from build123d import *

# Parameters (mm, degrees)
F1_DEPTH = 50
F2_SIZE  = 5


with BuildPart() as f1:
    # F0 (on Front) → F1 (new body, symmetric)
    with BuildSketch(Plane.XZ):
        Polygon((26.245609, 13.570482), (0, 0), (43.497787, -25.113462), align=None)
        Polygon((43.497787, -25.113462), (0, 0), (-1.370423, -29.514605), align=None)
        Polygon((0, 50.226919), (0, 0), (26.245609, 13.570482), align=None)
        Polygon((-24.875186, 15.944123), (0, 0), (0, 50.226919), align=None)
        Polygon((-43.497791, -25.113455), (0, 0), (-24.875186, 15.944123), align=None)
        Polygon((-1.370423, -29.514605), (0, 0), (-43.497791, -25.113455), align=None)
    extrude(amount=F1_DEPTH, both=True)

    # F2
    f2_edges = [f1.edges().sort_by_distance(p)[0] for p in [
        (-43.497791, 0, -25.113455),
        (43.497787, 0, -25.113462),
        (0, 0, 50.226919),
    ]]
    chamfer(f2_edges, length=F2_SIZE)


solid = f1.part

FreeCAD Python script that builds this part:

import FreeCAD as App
import Part
import Sketcher


def edges_at(feature, points):
    """Names of the edges that pass closest to the given points."""
    edges = feature.Shape.Edges
    near = lambda p: min(range(len(edges)), key=lambda i: edges[i].distToShape(Part.Vertex(*p))[0])
    return sorted({f"Edge{near(p) + 1}" for p in points})


def add_polygon(sketch, points):
    """Adds a closed chain of lines whose ends are joined by coincident constraints."""
    first, n = sketch.GeometryCount, len(points)
    for a, b in zip(points, points[1:] + points[:1]):
        sketch.addGeometry(Part.LineSegment(App.Vector(*a, 0), App.Vector(*b, 0)), False)
    for i in range(n):
        sketch.addConstraint(Sketcher.Constraint("Coincident", first + i, 2, first + (i + 1) % n, 1))

doc = App.newDocument("Part")
body = doc.addObject("PartDesign::Body", "Body")

# Sketch on XZ plane
sketch1 = doc.addObject("Sketcher::SketchObject", "Sketch")
body.addObject(sketch1)
sketch1.AttachmentSupport = (doc.XZ_Plane, [""])
sketch1.MapMode = "FlatFace"
add_polygon(sketch1, [(-1, -30), (43, -25), (26, 14), (0, 50), (-25, 16), (-43, -25)])  # lines 0-5
sketch1.addConstraint(Sketcher.Constraint("Symmetric", 0, 2, 4, 2, -2))
sketch1.addConstraint(Sketcher.Constraint("PointOnObject", 2, 2, -2))
sketch1.addConstraint(Sketcher.Constraint("Equal", 0, 2))
sketch1.addConstraint(Sketcher.Constraint("Equal", 1, 5))
sketch1.addConstraint(Sketcher.Constraint("DistanceX", 4, 2, 1, 2, 69.7434))
sketch1.addConstraint(Sketcher.Constraint("Distance", 0, 45.083548))
sketch1.addConstraint(Sketcher.Constraint("Distance", 3, 42.35664))
sketch1.addConstraint(Sketcher.Constraint("DistanceY", 0, 2, -1, 1, 25.113462))
sketch1.addConstraint(Sketcher.Constraint("DistanceX", -1, 1, 1, 2, 26.245609))
sketch1.addConstraint(Sketcher.Constraint("DistanceY", -1, 1, 2, 2, 50.226919))
sketch1.addConstraint(Sketcher.Constraint("DistanceY", 1, 2, 3, 2, 2.373641))
pad1 = doc.addObject("PartDesign::Pad", "Pad")
body.addObject(pad1)
pad1.Profile = sketch1
pad1.Length = 100
pad1.Midplane = True
doc.recompute()

chamfer = doc.addObject("PartDesign::Chamfer", "Chamfer")
body.addObject(chamfer)
chamfer.Base = (pad1, edges_at(pad1, [(-43.498, 0, -25.113), (43.498, 0, -25.113), (0, 0, 50.227)]))
chamfer.Size = 5

doc.recompute()
